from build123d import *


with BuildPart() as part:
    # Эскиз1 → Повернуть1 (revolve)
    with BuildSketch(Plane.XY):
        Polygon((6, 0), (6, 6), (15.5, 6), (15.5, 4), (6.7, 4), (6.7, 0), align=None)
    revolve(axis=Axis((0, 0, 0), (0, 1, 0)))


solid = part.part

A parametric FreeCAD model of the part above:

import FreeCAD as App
import Part
import Sketcher
Q = App.Units.Quantity

doc = App.newDocument("Part")
params = doc.addObject("Spreadsheet::Sheet", "Params")
for row, (alias, value) in enumerate([
    ("sketch1_height", "6 mm"),
    ("sketch1_height2", "4 mm"),
    ("sketch1_width", "0.7 mm"),
    ("sketch1_width2", "8.8 mm"),
    ("revolution_angle", "360 deg"),
], start=1):
    params.set(f"A{row}", alias)
    params.set(f"B{row}", "=" + value)
    params.setAlias(f"B{row}", alias)

body = doc.addObject("PartDesign::Body", "Body")

sketch1 = body.newObject("Sketcher::SketchObject", "Sketch")
sketch1.AttachmentSupport = (doc.getObject("XY_Plane"), [""])
sketch1.MapMode = "FlatFace"
sketch1.addGeometry(Part.LineSegment(App.Vector(6, 6, 0), App.Vector(6, 0, 0)), False)
sketch1.addGeometry(Part.LineSegment(App.Vector(6, 0, 0), App.Vector(6.7, 0, 0)), False)
sketch1.addGeometry(Part.LineSegment(App.Vector(6.7, 0, 0), App.Vector(6.7, 4, 0)), False)
sketch1.addGeometry(Part.LineSegment(App.Vector(6.7, 4, 0), App.Vector(15.5, 4, 0)), False)
sketch1.addGeometry(Part.LineSegment(App.Vector(15.5, 4, 0), App.Vector(15.5, 6, 0)), False)
sketch1.addGeometry(Part.LineSegment(App.Vector(15.5, 6, 0), App.Vector(6, 6, 0)), False)
sketch1.addConstraint(Sketcher.Constraint("Coincident", 0, 2, 1, 1))
sketch1.addConstraint(Sketcher.Constraint("Coincident", 1, 2, 2, 1))
sketch1.addConstraint(Sketcher.Constraint("Coincident", 2, 2, 3, 1))
sketch1.addConstraint(Sketcher.Constraint("Coincident", 3, 2, 4, 1))
sketch1.addConstraint(Sketcher.Constraint("Coincident", 4, 2, 5, 1))
sketch1.addConstraint(Sketcher.Constraint("Coincident", 5, 2, 0, 1))
sketch1.addConstraint(Sketcher.Constraint("Vertical", 0))
sketch1.addConstraint(Sketcher.Constraint("Horizontal", 1))
sketch1.addConstraint(Sketcher.Constraint("Vertical", 2))
sketch1.addConstraint(Sketcher.Constraint("Horizontal", 3))
sketch1.addConstraint(Sketcher.Constraint("Vertical", 4))
sketch1.addConstraint(Sketcher.Constraint("Horizontal", 5))
sketch1.addConstraint(Sketcher.Constraint("PointOnObject", 0, 2, -1))
sketch1.addConstraint(Sketcher.Constraint("DistanceY", 0, 2, 0, 1, Q("6 mm")))
sketch1.addConstraint(Sketcher.Constraint("DistanceY", 2, 1, 2, 2, Q("4 mm")))
sketch1.addConstraint(Sketcher.Constraint("DistanceX", 1, 1, 1, 2, Q("0.7 mm")))
sketch1.addConstraint(Sketcher.Constraint("DistanceX", 3, 1, 3, 2, Q("8.8 mm")))
sketch1.addConstraint(Sketcher.Constraint("DistanceX", -1, 1, 0, 2, Q("6 mm")))
sketch1.setExpression("Constraints[13]", "Params.sketch1_height")
sketch1.setExpression("Constraints[14]", "Params.sketch1_height2")
sketch1.setExpression("Constraints[15]", "Params.sketch1_width")
sketch1.setExpression("Constraints[16]", "Params.sketch1_width2")
revolution = body.newObject("PartDesign::Revolution", "Revolution")
revolution.Profile = sketch1
revolution.ReferenceAxis = (sketch1, ["V_Axis"])
revolution.setExpression("Angle", "Params.revolution_angle")

doc.recompute()
